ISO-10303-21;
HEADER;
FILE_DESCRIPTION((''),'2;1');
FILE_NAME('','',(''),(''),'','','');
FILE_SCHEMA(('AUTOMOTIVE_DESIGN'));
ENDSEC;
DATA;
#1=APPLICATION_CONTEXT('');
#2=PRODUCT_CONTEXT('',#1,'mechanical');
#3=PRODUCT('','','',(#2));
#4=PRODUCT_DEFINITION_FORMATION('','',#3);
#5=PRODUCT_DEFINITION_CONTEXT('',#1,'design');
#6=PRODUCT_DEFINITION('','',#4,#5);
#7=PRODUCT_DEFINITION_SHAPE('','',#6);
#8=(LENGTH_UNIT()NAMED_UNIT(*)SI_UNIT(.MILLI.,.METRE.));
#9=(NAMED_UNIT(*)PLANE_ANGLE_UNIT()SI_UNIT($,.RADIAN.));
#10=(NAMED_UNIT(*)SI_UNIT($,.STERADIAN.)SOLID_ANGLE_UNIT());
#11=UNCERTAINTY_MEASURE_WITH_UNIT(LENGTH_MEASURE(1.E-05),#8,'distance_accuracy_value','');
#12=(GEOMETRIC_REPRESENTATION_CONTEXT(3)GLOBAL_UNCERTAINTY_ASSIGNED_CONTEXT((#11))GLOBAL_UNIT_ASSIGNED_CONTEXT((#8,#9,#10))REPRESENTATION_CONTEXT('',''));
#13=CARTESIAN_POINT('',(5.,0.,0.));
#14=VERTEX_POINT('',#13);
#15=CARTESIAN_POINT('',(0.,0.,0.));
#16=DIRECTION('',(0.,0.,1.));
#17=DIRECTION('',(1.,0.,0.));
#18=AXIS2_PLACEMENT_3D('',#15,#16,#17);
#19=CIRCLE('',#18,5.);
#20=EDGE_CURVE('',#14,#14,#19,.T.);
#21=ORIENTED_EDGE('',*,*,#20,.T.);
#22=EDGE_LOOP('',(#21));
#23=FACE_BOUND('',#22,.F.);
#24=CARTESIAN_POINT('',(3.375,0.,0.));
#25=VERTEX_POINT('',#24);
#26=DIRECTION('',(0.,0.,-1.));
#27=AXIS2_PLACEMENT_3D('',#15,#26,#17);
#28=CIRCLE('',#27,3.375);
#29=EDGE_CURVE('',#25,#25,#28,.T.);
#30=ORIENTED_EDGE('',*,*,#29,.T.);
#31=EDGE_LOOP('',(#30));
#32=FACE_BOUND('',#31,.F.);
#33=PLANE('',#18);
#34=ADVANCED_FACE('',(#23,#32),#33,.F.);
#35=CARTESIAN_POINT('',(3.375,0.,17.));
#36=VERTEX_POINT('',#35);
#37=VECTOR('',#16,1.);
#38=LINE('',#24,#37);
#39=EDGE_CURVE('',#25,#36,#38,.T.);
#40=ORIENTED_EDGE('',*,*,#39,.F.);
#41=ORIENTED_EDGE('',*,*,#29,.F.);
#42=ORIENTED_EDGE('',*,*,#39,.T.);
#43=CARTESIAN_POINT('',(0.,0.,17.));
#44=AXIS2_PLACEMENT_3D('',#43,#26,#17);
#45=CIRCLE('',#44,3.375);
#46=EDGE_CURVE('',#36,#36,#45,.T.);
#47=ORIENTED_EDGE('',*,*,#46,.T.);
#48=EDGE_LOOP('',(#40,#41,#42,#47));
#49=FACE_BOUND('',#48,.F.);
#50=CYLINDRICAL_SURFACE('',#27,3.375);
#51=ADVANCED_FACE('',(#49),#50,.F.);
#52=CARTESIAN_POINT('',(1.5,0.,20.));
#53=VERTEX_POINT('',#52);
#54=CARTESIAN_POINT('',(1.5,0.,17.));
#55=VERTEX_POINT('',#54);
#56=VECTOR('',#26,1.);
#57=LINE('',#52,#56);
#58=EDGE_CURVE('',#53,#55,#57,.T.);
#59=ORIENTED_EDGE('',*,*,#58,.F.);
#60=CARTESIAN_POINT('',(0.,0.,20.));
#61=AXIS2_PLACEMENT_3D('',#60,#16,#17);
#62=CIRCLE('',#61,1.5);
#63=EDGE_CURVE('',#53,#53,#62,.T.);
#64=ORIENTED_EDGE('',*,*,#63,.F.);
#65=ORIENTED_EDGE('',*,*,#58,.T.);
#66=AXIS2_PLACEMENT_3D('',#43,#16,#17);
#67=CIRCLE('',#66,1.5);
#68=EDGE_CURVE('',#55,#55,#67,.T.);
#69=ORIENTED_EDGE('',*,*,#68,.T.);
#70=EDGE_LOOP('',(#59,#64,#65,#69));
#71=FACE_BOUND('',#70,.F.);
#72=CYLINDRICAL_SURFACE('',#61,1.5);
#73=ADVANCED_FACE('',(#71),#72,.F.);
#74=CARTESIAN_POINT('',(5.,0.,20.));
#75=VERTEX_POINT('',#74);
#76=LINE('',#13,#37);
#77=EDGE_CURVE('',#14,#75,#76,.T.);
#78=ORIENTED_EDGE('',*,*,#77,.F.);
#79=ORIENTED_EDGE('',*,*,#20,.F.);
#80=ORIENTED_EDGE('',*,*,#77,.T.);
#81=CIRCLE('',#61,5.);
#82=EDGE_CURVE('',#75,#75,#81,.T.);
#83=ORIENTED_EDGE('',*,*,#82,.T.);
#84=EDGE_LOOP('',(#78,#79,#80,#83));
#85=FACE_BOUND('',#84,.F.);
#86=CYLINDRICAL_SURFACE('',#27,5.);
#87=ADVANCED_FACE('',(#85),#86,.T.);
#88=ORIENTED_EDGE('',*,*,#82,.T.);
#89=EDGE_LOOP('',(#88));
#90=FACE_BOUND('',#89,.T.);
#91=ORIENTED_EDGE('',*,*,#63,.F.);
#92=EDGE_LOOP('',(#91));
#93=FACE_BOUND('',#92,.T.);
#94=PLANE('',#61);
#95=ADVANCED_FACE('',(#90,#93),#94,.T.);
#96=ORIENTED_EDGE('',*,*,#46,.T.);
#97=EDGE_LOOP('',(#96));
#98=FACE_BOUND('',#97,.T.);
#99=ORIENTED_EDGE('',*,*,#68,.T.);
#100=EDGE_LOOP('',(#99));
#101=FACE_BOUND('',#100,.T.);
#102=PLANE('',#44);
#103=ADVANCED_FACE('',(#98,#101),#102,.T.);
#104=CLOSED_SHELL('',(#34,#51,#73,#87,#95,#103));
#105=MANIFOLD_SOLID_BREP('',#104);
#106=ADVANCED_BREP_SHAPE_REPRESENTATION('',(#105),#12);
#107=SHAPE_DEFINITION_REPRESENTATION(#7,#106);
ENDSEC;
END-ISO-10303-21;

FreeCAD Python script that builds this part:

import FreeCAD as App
import Part
import Sketcher

doc = App.newDocument("Part")
body = doc.addObject("PartDesign::Body", "Body")

sketch1 = body.newObject("Sketcher::SketchObject", "Sketch")
sketch1.AttachmentSupport = (doc.getObject("XY_Plane"), [""])
sketch1.MapMode = "FlatFace"
sketch1.addGeometry(Part.Circle(App.Vector(0, 0, 0), App.Vector(0, 0, 1), 5), False)
sketch1.addConstraint([
    Sketcher.Constraint("Coincident", 0, 3, -1, 1),
    Sketcher.Constraint("Diameter", 0, 10.0),
])
pad1 = body.newObject("PartDesign::Pad", "Pad")
pad1.Profile = sketch1
pad1.Length = 20

sketch2 = body.newObject("Sketcher::SketchObject", "Sketch001")
sketch2.AttachmentSupport = (doc.getObject("XY_Plane"), [""])
sketch2.MapMode = "FlatFace"
sketch2.addGeometry(Part.Circle(App.Vector(0, 0, 0), App.Vector(0, 0, 1), 3.375), False)
sketch2.addConstraint([
    Sketcher.Constraint("Coincident", 0, 3, -1, 1),
    Sketcher.Constraint("Diameter", 0, 6.75),
])
pocket1 = body.newObject("PartDesign::Pocket", "Pocket")
pocket1.Profile = sketch2
pocket1.Length = 17
pocket1.Reversed = True

sketch3 = body.newObject("Sketcher::SketchObject", "Sketch002")
sketch3.AttachmentSupport = (doc.getObject("XY_Plane"), [""])
sketch3.MapMode = "FlatFace"
sketch3.AttachmentOffset = App.Placement(App.Vector(0, 0, 20), App.Rotation())
sketch3.addGeometry(Part.Circle(App.Vector(0, 0, 0), App.Vector(0, 0, 1), 1.5), False)
sketch3.addConstraint([
    Sketcher.Constraint("Coincident", 0, 3, -1, 1),
    Sketcher.Constraint("Diameter", 0, 3.0),
])
pocket2 = body.newObject("PartDesign::Pocket", "Pocket001")
pocket2.Profile = sketch3
pocket2.Type = "ThroughAll"

doc.recompute()
